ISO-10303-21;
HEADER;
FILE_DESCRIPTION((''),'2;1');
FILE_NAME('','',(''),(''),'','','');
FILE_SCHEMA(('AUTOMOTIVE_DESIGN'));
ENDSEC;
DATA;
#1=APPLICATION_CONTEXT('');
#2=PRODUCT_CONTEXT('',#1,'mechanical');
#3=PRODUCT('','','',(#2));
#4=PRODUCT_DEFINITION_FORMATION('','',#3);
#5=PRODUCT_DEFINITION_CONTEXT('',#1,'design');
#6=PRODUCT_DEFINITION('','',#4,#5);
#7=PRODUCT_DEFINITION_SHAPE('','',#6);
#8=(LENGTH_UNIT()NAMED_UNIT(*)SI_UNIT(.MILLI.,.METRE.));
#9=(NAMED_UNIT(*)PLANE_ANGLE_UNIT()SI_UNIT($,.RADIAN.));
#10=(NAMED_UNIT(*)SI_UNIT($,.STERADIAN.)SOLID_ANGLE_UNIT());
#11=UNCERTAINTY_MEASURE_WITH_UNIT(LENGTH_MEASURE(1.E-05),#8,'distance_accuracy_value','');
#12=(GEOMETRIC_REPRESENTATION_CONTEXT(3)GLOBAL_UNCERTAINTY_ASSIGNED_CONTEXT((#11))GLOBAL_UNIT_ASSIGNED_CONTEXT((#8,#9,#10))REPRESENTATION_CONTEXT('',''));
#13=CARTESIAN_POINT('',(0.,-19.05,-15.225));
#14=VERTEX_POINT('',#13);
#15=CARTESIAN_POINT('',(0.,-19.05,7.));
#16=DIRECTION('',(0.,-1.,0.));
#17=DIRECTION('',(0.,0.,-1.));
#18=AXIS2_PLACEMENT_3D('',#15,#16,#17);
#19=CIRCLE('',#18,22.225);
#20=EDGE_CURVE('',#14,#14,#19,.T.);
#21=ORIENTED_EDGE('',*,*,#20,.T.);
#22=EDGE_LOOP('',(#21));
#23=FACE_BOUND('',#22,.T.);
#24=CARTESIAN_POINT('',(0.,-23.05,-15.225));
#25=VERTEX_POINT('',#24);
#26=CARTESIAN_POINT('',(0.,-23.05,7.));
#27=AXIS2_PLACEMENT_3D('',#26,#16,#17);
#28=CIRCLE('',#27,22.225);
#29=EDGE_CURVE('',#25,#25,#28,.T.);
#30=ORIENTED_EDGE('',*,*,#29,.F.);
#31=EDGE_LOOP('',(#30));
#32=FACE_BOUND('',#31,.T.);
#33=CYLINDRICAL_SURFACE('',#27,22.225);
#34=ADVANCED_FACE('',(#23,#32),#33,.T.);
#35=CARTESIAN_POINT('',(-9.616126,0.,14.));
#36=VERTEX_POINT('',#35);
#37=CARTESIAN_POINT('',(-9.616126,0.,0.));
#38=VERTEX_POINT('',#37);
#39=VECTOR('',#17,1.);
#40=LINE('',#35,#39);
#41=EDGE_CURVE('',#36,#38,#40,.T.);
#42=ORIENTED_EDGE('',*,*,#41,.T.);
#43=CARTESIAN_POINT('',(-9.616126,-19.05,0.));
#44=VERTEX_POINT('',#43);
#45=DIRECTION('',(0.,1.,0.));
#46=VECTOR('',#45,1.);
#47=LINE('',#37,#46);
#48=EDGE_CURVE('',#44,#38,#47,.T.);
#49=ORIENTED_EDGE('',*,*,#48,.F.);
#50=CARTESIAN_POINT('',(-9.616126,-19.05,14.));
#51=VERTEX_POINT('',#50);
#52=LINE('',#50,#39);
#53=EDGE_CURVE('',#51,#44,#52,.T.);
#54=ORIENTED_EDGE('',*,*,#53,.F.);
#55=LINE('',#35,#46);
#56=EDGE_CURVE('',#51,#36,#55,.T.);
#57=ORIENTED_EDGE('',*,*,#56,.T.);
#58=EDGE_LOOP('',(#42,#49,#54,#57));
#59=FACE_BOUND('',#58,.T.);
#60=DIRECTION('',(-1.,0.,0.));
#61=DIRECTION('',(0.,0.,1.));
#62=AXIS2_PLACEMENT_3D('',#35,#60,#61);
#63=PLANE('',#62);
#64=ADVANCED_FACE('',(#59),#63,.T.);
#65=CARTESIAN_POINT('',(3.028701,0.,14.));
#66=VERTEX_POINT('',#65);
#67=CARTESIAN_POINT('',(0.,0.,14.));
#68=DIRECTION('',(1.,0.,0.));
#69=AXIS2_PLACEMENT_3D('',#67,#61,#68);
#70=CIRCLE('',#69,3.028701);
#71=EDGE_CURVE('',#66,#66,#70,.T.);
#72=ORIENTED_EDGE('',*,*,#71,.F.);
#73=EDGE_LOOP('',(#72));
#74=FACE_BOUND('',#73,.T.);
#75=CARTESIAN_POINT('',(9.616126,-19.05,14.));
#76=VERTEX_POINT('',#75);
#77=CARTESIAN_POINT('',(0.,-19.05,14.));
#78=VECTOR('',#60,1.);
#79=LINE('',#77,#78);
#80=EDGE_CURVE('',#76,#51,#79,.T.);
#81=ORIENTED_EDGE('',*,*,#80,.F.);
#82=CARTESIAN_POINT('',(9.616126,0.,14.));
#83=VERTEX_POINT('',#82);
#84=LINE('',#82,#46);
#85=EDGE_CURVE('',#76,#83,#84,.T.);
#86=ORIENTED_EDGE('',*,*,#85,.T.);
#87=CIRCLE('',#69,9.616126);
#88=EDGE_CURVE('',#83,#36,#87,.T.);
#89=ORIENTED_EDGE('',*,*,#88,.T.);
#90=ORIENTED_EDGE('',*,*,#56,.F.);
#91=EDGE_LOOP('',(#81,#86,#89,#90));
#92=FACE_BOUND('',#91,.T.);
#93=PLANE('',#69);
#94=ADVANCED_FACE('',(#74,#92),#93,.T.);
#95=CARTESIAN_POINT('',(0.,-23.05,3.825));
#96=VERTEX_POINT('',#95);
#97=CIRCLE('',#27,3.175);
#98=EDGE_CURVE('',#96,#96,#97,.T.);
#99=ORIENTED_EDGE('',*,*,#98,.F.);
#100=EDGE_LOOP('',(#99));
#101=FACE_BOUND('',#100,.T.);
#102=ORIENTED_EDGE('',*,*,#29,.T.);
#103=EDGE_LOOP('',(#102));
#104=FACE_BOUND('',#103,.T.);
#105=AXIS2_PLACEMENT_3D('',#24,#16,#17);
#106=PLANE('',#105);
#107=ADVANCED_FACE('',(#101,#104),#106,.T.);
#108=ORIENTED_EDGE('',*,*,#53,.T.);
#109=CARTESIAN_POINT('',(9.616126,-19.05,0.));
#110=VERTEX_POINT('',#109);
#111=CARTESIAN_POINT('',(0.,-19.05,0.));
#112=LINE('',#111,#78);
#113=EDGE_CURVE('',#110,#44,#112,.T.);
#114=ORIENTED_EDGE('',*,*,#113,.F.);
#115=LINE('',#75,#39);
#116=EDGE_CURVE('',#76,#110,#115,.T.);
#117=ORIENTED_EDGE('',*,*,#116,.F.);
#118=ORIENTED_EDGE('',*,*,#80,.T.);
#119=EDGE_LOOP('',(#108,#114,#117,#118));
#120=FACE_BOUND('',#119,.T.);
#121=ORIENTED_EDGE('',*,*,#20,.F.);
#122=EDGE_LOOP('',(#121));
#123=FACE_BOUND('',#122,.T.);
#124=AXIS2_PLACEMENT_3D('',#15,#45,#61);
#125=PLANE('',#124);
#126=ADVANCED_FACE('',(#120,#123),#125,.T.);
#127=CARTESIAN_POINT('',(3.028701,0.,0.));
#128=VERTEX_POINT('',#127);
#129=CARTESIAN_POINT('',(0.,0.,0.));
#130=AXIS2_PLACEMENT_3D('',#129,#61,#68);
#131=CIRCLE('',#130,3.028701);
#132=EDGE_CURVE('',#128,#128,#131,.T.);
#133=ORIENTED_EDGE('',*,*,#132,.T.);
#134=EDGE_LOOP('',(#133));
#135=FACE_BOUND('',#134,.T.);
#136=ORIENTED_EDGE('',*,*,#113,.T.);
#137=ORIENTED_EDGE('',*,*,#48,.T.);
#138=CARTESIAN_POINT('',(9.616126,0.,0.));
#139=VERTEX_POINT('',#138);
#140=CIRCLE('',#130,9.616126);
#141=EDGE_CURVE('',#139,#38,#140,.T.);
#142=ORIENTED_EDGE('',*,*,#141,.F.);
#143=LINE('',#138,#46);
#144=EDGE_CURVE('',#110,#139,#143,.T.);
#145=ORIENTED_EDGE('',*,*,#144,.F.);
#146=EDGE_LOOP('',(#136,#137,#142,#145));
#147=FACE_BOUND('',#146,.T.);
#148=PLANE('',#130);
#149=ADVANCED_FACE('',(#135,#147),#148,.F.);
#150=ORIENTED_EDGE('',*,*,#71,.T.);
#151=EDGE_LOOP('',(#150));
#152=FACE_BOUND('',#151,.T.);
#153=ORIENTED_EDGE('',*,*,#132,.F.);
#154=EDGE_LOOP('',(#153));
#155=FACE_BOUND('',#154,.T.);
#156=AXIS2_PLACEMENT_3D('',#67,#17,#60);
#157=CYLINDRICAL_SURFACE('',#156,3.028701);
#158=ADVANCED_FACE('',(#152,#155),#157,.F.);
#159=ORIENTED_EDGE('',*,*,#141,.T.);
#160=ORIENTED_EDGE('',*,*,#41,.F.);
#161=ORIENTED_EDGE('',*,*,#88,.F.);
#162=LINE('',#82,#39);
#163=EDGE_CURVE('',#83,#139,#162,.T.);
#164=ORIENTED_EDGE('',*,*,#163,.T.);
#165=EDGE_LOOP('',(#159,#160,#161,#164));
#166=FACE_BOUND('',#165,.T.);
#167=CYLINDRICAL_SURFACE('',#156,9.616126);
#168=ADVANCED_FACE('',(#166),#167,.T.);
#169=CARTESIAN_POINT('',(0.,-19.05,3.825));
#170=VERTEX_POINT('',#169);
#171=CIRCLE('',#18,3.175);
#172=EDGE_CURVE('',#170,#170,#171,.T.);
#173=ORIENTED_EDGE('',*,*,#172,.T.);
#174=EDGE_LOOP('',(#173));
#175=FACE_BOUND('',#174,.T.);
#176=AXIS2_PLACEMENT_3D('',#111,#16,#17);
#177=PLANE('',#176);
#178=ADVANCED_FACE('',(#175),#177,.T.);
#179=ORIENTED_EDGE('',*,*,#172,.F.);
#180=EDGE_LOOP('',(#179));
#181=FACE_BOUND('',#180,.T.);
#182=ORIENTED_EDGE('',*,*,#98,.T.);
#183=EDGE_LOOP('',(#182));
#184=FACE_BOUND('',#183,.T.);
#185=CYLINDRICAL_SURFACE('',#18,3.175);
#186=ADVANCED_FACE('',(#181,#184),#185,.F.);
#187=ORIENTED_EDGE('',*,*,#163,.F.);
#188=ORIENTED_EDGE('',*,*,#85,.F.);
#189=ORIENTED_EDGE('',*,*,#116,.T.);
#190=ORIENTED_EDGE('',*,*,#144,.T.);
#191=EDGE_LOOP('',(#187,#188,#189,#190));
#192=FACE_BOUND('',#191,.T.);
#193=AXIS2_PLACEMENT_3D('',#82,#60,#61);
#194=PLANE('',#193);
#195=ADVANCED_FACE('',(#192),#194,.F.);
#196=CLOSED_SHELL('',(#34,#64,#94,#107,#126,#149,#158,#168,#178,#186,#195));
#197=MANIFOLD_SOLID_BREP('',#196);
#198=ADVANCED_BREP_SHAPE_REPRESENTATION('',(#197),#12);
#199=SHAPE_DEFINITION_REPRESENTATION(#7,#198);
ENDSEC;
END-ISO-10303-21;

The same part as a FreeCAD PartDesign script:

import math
import FreeCAD as App
import Part
import Sketcher
Q = App.Units.Quantity

doc = App.newDocument("Part")
params = doc.addObject("Spreadsheet::Sheet", "Params")
for row, (alias, value) in enumerate([
    ("sketch1_height", "0.75 in"),
    ("pad1_length", "14 mm"),
    ("sketch2_height", "0.875 in"),
    ("revolution_angle", "360 deg"),
    ("sketch3_diameter", "0.25 in"),
    ("pocket1_length", "4 mm"),
], start=1):
    params.set(f"A{row}", alias)
    params.set(f"B{row}", "=" + value)
    params.setAlias(f"B{row}", alias)

body = doc.addObject("PartDesign::Body", "Body")

# Sketch on XY plane
sketch1 = body.newObject("Sketcher::SketchObject", "Sketch")
sketch1.AttachmentSupport = (doc.getObject("XY_Plane"), [""])
sketch1.MapMode = "FlatFace"
sketch1.addGeometry([
    Part.LineSegment(App.Vector(-9.6, -19.1, 0), App.Vector(9.6, -19.1, 0)),  # 0
    Part.LineSegment(App.Vector(9.6, -19.1, 0), App.Vector(9.6, 0, 0)),  # 1
    Part.ArcOfCircle(Part.Circle(App.Vector(0, 0, 0), App.Vector(0, 0, 1), 9.6), math.radians(0), math.radians(180)),  # 2
    Part.LineSegment(App.Vector(-9.6, 0, 0), App.Vector(-9.6, -19.1, 0)),  # 3
    Part.Circle(App.Vector(0, 0, 0), App.Vector(0, 0, 1), 3),  # 4
], False)
sketch1.addConstraint([
    Sketcher.Constraint("Coincident", 0, 2, 1, 1),
    Sketcher.Constraint("Tangent", 1, 2, 2, 1),
    Sketcher.Constraint("Tangent", 2, 2, 3, 1),
    Sketcher.Constraint("Coincident", 3, 2, 0, 1),
    Sketcher.Constraint("Horizontal", 0),
    Sketcher.Constraint("Vertical", 1),
    Sketcher.Constraint("Vertical", 3),
    Sketcher.Constraint("Coincident", 2, 3, -1, 1),
    Sketcher.Constraint("Coincident", 4, 3, -1, 1),
    Sketcher.Constraint("DistanceY", 1, 1, 1, 2, Q("0.75 in")),
    Sketcher.Constraint("Diameter", 4, Q("6.057402 mm")),
    Sketcher.Constraint("Radius", 2, Q("9.616126 mm")),
])
sketch1.setExpression("Constraints[9]", "Params.sketch1_height")
pad1 = body.newObject("PartDesign::Pad", "Pad")
pad1.Profile = sketch1
pad1.setExpression("Length", "Params.pad1_length")

# Sketch on YZ plane
sketch2 = body.newObject("Sketcher::SketchObject", "Sketch001")
sketch2.AttachmentSupport = (doc.getObject("YZ_Plane"), [""])
sketch2.MapMode = "FlatFace"
sketch2.addGeometry([
    Part.LineSegment(App.Vector(-19.1, 7, 0), App.Vector(-23.1, 7, 0)),
    Part.LineSegment(App.Vector(-23.1, 7, 0), App.Vector(-23.1, -15.2, 0)),
    Part.LineSegment(App.Vector(-23.1, -15.2, 0), App.Vector(-19.1, -15.2, 0)),
    Part.LineSegment(App.Vector(-19.1, -15.2, 0), App.Vector(-19.1, 7, 0)),
], False)
sketch2.addGeometry(Part.LineSegment(App.Vector(-23.1, 7, 0), App.Vector(-19.1, 7, 0)), True)  # axis
sketch2.addConstraint([
    Sketcher.Constraint("Coincident", 0, 2, 1, 1),
    Sketcher.Constraint("Coincident", 1, 2, 2, 1),
    Sketcher.Constraint("Coincident", 2, 2, 3, 1),
    Sketcher.Constraint("Coincident", 3, 2, 0, 1),
    Sketcher.Constraint("Horizontal", 0),
    Sketcher.Constraint("Vertical", 1),
    Sketcher.Constraint("Horizontal", 2),
    Sketcher.Constraint("Vertical", 3),
    Sketcher.Constraint("Horizontal", 4),
    Sketcher.Constraint("Coincident", 4, 1, 0, 2),
    Sketcher.Constraint("Vertical", 2, 2, 4, 2),
    Sketcher.Constraint("DistanceY", 1, 2, 1, 1, Q("0.875 in")),
    Sketcher.Constraint("DistanceX", 2, 2, -1, 1, Q("0.75 in")),
    Sketcher.Constraint("DistanceX", 0, 2, 0, 1, Q("4 mm")),
    Sketcher.Constraint("DistanceY", -1, 1, 0, 2, Q("7 mm")),
])
sketch2.setExpression("Constraints[11]", "Params.sketch2_height")
revolution = body.newObject("PartDesign::Revolution", "Revolution")
revolution.Profile = sketch2
revolution.ReferenceAxis = (sketch2, ["Axis0"])
revolution.setExpression("Angle", "Params.revolution_angle")

# Sketch on XZ plane
sketch3 = body.newObject("Sketcher::SketchObject", "Sketch002")
sketch3.AttachmentSupport = (doc.getObject("XZ_Plane"), [""])
sketch3.MapMode = "FlatFace"
sketch3.AttachmentOffset = App.Placement(App.Vector(0, 0, 23.05), App.Rotation())
sketch3.addGeometry(Part.Circle(App.Vector(0, 7, 0), App.Vector(0, 0, 1), 3.2), False)
sketch3.addConstraint([
    Sketcher.Constraint("PointOnObject", 0, 3, -2),
    Sketcher.Constraint("Diameter", 0, Q("0.25 in")),
    Sketcher.Constraint("DistanceY", -1, 1, 0, 3, Q("7 mm")),
])
sketch3.setExpression("Constraints[1]", "Params.sketch3_diameter")
pocket1 = body.newObject("PartDesign::Pocket", "Pocket")
pocket1.Profile = sketch3
pocket1.setExpression("Length", "Params.pocket1_length")

doc.recompute()
